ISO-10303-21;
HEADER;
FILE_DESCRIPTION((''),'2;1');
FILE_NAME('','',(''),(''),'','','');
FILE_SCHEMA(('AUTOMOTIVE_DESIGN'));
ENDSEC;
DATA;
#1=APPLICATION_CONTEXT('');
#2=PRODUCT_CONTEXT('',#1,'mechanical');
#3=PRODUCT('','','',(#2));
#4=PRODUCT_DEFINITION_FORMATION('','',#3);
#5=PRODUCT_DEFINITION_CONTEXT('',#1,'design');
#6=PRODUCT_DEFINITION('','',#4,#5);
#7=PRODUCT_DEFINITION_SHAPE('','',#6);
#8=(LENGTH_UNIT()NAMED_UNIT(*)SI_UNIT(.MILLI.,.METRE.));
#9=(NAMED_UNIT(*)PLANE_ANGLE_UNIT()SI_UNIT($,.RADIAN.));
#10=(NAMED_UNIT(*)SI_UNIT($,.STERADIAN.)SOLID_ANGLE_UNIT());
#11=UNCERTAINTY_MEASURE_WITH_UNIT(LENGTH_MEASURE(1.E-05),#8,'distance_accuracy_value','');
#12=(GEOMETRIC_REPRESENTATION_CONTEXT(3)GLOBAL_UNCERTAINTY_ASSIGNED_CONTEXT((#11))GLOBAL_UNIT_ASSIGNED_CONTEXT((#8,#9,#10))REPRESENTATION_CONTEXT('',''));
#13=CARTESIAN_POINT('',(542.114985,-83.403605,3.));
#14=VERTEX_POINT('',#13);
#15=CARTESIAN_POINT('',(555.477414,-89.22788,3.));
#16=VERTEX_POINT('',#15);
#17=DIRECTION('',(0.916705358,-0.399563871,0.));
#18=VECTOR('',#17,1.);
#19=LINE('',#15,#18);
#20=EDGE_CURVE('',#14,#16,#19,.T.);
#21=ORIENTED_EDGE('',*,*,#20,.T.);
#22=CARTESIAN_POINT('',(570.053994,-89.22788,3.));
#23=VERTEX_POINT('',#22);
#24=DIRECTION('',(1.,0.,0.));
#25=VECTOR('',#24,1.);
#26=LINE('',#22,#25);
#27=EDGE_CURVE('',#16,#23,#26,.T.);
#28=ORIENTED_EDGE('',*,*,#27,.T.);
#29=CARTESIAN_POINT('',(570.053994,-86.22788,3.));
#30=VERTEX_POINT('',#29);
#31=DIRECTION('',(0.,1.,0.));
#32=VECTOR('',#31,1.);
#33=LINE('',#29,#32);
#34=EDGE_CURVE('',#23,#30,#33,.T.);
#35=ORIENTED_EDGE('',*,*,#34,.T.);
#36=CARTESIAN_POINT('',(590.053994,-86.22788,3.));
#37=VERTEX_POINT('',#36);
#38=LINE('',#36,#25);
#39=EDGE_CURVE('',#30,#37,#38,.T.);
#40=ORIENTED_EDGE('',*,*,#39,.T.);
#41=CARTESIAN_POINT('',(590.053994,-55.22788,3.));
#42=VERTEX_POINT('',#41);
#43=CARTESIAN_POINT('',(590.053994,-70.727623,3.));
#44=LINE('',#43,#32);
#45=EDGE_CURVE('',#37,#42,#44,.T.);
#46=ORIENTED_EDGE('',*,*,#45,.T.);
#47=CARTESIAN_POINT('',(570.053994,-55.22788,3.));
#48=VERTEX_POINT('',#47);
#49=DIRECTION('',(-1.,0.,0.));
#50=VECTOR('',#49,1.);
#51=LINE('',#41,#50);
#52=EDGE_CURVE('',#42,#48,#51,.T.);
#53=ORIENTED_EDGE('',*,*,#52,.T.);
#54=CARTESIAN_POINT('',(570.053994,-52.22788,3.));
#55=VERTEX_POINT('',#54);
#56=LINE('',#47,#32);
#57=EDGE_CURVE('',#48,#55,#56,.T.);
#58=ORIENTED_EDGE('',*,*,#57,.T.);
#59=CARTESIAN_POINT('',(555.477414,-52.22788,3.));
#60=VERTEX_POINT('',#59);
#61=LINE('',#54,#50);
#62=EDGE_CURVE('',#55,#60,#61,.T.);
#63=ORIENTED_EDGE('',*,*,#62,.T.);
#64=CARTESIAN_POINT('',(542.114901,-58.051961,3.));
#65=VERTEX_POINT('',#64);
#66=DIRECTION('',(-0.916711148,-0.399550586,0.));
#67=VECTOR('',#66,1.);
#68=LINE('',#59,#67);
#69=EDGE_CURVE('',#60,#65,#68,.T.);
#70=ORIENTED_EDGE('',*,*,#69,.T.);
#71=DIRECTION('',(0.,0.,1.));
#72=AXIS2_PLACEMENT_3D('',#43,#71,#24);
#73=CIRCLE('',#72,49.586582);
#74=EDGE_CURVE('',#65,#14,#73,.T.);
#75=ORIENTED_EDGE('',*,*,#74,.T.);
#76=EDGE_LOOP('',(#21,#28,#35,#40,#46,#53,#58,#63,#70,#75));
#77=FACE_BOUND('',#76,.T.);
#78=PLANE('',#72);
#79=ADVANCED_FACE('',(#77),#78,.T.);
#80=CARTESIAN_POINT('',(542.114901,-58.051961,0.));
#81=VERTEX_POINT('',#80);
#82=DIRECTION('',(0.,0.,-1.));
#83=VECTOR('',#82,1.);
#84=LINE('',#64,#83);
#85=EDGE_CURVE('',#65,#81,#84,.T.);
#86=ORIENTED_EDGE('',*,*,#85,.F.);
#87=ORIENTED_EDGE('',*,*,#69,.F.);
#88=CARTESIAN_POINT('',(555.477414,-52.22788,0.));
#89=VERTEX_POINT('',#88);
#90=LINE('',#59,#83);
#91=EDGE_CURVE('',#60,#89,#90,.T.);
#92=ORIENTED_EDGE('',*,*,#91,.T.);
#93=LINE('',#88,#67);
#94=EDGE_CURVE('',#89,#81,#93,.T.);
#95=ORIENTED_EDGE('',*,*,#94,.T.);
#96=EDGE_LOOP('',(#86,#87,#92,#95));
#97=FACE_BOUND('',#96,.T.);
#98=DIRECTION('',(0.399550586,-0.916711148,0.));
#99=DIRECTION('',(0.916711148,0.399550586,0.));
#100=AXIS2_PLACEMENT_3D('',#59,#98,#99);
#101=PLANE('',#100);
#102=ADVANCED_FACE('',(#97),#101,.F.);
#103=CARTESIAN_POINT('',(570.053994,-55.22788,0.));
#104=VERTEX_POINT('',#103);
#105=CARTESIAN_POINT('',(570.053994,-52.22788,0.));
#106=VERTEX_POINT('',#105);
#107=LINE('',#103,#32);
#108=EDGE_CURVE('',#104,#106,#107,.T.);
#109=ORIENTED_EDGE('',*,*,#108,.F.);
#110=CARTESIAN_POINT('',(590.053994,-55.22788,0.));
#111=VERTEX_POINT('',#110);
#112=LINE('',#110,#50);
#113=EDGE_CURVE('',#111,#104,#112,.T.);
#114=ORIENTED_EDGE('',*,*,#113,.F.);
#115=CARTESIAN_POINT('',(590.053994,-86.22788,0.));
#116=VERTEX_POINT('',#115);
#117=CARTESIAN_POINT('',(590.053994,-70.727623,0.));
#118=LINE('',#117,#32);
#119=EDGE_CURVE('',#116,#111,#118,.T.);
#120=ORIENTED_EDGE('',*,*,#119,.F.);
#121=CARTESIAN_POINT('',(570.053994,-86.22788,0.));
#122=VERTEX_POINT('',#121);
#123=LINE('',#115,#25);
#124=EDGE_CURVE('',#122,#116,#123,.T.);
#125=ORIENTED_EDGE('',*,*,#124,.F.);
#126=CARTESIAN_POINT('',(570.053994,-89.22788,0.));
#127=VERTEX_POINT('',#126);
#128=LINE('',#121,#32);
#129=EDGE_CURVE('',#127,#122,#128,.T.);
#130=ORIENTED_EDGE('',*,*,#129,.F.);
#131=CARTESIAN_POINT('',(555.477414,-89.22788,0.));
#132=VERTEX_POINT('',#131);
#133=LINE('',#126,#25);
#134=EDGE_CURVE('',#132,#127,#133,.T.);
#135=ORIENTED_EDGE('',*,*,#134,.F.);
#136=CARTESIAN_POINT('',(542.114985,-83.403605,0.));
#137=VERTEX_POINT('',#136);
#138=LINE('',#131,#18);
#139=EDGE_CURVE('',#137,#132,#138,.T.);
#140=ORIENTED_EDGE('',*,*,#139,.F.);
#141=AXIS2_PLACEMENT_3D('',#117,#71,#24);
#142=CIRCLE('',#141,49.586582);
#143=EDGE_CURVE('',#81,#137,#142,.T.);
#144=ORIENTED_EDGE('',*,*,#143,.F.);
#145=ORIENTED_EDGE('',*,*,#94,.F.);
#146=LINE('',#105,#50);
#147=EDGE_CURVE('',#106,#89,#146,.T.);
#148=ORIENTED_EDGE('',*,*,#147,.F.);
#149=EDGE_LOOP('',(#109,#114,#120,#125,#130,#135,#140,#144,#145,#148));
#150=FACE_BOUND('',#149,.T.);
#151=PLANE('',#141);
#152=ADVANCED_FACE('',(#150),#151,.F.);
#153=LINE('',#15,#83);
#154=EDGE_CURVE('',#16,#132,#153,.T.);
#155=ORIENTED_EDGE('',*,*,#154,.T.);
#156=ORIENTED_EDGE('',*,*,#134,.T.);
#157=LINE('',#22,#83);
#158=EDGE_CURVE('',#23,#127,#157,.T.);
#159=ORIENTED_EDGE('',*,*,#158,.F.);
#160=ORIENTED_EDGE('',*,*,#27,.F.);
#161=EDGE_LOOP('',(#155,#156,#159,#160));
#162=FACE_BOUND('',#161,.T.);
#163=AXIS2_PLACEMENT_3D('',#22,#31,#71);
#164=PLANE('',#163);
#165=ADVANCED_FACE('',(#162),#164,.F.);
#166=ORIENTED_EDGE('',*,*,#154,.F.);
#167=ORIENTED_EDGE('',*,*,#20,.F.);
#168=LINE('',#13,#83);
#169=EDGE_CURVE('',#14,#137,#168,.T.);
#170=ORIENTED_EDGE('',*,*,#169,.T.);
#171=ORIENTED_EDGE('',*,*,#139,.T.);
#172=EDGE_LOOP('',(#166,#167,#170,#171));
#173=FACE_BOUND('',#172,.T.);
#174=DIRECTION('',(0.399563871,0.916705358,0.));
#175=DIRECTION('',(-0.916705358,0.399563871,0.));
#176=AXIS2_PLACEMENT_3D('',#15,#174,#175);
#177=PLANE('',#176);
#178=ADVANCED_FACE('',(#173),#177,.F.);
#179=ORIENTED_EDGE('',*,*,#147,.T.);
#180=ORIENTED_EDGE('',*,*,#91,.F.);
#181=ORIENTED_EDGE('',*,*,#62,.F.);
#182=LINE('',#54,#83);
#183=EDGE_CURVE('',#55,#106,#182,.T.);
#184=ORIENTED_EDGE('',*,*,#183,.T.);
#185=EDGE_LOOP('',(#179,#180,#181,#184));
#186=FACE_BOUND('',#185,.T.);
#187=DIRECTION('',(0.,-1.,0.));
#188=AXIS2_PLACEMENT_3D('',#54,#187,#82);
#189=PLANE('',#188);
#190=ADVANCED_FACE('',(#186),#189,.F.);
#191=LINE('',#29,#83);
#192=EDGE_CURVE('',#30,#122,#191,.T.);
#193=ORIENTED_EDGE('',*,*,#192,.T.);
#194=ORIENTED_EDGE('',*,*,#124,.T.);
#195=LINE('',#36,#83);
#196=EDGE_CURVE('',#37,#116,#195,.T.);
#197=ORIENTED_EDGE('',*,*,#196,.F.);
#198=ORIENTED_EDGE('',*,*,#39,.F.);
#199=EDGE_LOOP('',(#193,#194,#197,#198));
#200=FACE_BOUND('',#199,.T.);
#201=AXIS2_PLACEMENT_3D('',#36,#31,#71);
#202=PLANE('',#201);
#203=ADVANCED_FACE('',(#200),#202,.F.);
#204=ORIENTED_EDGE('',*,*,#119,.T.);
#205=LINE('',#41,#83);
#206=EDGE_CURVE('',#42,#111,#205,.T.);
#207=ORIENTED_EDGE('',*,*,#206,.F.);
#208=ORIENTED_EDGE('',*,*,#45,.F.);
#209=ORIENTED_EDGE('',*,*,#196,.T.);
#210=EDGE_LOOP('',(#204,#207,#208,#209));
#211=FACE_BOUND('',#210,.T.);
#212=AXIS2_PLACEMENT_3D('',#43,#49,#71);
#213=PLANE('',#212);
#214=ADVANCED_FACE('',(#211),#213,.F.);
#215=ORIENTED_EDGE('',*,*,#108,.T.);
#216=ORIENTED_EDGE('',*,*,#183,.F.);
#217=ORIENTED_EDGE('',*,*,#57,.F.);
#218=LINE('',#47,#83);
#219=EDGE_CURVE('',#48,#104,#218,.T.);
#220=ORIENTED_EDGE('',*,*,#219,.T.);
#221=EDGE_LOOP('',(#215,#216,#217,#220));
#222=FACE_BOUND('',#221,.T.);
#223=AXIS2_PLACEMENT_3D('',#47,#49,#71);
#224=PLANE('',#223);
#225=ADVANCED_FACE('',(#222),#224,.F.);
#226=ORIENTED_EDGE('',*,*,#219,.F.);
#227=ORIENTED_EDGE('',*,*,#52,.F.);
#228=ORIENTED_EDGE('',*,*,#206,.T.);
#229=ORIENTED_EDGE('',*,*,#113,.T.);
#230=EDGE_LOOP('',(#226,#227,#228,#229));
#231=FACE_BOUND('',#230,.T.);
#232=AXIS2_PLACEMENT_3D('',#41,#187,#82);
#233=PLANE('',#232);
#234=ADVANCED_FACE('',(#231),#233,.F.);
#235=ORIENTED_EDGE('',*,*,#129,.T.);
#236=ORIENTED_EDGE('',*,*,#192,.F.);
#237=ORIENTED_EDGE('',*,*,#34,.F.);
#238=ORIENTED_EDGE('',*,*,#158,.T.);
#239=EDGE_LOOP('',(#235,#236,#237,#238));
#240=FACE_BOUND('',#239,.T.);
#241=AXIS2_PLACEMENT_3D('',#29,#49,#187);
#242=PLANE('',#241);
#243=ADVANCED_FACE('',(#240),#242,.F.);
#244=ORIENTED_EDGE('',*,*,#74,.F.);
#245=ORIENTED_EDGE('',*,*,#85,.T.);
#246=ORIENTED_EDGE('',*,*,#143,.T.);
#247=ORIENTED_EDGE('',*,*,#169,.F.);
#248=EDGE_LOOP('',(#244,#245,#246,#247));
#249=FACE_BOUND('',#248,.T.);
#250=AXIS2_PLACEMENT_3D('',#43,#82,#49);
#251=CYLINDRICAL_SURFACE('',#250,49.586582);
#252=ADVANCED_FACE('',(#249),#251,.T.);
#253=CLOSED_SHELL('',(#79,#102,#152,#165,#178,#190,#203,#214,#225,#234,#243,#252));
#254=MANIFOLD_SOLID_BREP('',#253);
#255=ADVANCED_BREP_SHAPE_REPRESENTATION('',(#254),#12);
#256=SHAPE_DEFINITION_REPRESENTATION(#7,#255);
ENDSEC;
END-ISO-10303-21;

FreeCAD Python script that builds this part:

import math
import FreeCAD as App
import Part
import Sketcher

V = App.Vector

doc = App.newDocument("Part")
body = doc.addObject("PartDesign::Body", "Body")

sketch1 = doc.addObject("Sketcher::SketchObject", "Sketch")
body.addObject(sketch1)
sketch1.AttachmentSupport = (doc.XY_Plane, [""])
sketch1.MapMode = "FlatFace"
sketch1.addGeometry([
    Part.LineSegment(V(570.1, -52.2, 0), V(555.5, -52.2, 0)),
    Part.LineSegment(V(555.5, -52.2, 0), V(542.1, -58.1, 0)),
    Part.ArcOfCircle(Part.Circle(V(590.1, -70.7, 0), V(0, 0, 1), 49.6), math.radians(165), math.radians(195)),
    Part.LineSegment(V(542.1, -83.4, 0), V(555.5, -89.2, 0)),
    Part.LineSegment(V(555.5, -89.2, 0), V(570.1, -89.2, 0)),
    Part.LineSegment(V(570.1, -89.2, 0), V(570.1, -86.2, 0)),
    Part.LineSegment(V(570.1, -86.2, 0), V(590.1, -86.2, 0)),
    Part.LineSegment(V(590.1, -86.2, 0), V(590.1, -55.2, 0)),
    Part.LineSegment(V(590.1, -55.2, 0), V(570.1, -55.2, 0)),
    Part.LineSegment(V(570.1, -55.2, 0), V(570.1, -52.2, 0)),
], False)
sketch1.addConstraint([
    Sketcher.Constraint("Coincident", 0, 2, 1, 1),
    Sketcher.Constraint("Coincident", 1, 2, 2, 1),
    Sketcher.Constraint("Coincident", 2, 2, 3, 1),
    Sketcher.Constraint("Coincident", 3, 2, 4, 1),
    Sketcher.Constraint("Coincident", 4, 2, 5, 1),
    Sketcher.Constraint("Coincident", 5, 2, 6, 1),
    Sketcher.Constraint("Coincident", 6, 2, 7, 1),
    Sketcher.Constraint("Coincident", 7, 2, 8, 1),
    Sketcher.Constraint("Coincident", 8, 2, 9, 1),
    Sketcher.Constraint("Coincident", 9, 2, 0, 1),
    Sketcher.Constraint("Horizontal", 0),
    Sketcher.Constraint("Horizontal", 4),
    Sketcher.Constraint("Vertical", 5),
    Sketcher.Constraint("Horizontal", 6),
    Sketcher.Constraint("Vertical", 7),
    Sketcher.Constraint("Horizontal", 8),
    Sketcher.Constraint("Vertical", 9),
    Sketcher.Constraint("Vertical", 0, 2, 3, 2),
    Sketcher.Constraint("Vertical", 2, 3, 6, 2),
    Sketcher.Constraint("Vertical", 5, 2, 8, 2),
    Sketcher.Constraint("Equal", 5, 9),
    Sketcher.Constraint("Equal", 1, 3),
    Sketcher.Constraint("DistanceX", 6, 1, 6, 2, 20.0),
    Sketcher.Constraint("DistanceY", 5, 1, 5, 2, 3.0),
    Sketcher.Constraint("DistanceY", 7, 1, 7, 2, 31.0),
    Sketcher.Constraint("Radius", 2, 49.586582),
    Sketcher.Constraint("DistanceX", 0, 2, 0, 1, 14.57658),
    Sketcher.Constraint("DistanceX", -1, 1, 1, 2, 542.114901),
    Sketcher.Constraint("Distance", 1, 14.57658),
    Sketcher.Constraint("DistanceY", 0, 2, -1, 1, 52.22788),
    Sketcher.Constraint("DistanceY", 1, 2, -1, 1, 58.051961),
])
pad1 = doc.addObject("PartDesign::Pad", "Pad")
body.addObject(pad1)
pad1.Profile = sketch1
pad1.Length = 3

doc.recompute()
